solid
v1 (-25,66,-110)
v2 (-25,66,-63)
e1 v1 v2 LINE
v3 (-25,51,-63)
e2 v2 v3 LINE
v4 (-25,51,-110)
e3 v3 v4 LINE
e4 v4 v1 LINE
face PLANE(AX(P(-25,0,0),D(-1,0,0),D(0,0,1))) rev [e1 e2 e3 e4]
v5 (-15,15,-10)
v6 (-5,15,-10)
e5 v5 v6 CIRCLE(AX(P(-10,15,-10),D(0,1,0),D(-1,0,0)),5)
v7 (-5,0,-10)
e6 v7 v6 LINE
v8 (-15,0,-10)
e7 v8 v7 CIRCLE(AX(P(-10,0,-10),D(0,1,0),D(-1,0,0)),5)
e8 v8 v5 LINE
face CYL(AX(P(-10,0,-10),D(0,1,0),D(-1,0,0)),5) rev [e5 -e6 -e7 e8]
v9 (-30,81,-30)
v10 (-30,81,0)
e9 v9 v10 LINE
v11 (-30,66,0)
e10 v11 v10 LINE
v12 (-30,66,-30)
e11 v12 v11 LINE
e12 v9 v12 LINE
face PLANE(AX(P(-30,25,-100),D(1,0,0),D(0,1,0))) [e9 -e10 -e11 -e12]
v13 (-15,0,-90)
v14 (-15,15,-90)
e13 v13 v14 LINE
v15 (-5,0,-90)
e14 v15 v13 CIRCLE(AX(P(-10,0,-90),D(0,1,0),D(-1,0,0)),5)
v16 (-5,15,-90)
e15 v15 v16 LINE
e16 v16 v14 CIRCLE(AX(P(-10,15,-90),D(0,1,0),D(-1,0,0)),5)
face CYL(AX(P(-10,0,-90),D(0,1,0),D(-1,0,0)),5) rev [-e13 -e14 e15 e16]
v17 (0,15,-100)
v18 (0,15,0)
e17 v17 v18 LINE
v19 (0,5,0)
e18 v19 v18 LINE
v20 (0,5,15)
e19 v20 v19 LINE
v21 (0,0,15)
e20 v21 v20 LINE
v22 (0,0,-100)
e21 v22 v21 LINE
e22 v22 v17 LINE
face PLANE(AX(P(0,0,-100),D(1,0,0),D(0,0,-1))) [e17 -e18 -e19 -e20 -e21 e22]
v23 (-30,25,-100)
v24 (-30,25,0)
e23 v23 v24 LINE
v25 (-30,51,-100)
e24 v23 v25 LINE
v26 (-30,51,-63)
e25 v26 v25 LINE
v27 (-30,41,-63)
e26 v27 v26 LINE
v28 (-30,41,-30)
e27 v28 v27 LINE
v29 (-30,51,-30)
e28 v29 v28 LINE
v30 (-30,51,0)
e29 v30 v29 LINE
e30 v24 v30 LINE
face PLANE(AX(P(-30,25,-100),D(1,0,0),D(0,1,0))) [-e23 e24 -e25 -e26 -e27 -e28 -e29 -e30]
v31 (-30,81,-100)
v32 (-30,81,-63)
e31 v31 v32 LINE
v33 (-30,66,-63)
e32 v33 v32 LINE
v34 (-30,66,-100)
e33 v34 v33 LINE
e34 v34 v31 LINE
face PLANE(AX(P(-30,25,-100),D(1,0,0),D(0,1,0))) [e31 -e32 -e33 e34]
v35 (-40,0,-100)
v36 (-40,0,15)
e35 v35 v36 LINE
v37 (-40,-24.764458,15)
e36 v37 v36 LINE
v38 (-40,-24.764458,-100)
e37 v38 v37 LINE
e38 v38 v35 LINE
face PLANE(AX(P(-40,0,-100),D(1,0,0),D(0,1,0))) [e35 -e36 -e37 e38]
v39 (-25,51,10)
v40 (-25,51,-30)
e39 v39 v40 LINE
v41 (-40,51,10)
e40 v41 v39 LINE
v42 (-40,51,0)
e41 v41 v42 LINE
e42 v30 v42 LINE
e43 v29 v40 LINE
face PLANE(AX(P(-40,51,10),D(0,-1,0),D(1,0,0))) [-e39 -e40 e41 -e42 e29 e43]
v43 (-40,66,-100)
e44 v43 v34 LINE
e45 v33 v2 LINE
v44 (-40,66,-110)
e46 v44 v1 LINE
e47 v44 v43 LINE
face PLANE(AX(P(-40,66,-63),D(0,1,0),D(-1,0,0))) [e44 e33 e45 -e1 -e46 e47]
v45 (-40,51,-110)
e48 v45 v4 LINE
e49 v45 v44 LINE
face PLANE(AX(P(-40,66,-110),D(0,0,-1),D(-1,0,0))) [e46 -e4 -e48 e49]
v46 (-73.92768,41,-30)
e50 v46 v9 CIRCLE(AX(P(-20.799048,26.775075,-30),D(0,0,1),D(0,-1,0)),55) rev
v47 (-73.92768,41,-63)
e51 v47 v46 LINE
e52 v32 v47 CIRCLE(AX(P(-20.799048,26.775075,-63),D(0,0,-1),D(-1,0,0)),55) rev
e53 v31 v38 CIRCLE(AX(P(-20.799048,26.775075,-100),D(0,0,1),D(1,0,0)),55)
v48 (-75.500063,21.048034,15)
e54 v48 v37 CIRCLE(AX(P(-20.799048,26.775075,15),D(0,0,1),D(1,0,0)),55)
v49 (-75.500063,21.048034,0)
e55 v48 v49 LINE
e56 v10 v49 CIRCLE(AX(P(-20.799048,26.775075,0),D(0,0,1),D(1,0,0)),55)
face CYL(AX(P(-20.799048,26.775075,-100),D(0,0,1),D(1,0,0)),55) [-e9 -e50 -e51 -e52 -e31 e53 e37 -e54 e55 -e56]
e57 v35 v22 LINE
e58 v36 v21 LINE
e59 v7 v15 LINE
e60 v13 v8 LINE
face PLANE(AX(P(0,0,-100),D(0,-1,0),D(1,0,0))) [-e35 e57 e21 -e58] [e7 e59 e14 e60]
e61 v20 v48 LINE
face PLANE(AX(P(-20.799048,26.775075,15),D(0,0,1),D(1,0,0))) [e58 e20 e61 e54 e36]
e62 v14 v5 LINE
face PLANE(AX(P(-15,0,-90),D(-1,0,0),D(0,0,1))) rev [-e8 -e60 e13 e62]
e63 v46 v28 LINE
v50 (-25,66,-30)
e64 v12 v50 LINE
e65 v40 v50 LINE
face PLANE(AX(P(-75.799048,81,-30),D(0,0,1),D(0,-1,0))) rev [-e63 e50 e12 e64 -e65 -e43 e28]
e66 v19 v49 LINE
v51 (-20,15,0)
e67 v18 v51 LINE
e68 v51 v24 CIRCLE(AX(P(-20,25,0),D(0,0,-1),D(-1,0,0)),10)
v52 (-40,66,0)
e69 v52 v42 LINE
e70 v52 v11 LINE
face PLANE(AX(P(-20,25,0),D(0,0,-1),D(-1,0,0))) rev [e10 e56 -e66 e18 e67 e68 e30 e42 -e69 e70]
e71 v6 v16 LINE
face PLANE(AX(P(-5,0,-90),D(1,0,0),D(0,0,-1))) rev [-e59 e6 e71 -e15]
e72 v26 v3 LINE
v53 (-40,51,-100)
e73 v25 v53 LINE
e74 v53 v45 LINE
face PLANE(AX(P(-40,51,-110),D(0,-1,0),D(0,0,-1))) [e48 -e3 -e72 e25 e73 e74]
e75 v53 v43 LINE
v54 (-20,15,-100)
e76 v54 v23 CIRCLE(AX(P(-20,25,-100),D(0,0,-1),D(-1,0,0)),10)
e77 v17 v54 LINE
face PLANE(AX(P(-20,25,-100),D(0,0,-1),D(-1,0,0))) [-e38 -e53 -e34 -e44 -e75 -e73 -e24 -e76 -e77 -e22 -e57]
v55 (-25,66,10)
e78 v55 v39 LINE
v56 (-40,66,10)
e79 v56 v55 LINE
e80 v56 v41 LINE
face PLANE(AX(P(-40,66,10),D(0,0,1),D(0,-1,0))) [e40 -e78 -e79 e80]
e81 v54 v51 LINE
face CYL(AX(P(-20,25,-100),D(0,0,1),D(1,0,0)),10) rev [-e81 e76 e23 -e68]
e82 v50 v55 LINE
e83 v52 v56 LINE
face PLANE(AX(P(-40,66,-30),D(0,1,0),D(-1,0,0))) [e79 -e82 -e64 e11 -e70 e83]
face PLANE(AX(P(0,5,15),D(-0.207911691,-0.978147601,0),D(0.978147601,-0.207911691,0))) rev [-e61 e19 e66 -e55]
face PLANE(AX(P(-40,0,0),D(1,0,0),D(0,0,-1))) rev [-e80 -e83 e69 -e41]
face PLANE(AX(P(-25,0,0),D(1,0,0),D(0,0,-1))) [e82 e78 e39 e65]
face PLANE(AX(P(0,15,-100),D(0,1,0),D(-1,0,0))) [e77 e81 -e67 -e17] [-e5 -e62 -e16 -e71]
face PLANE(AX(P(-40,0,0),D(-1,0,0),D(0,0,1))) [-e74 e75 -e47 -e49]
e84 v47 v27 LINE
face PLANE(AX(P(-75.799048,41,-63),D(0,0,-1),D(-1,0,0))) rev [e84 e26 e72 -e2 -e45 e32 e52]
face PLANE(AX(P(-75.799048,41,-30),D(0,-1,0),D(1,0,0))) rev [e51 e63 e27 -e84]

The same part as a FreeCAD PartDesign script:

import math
import FreeCAD as App
import Part
import Sketcher

V = App.Vector
Q = App.Units.Quantity

doc = App.newDocument("Part")
body = doc.addObject("PartDesign::Body", "Body")

sketch1 = doc.addObject("Sketcher::SketchObject", "Sketch")
body.addObject(sketch1)
sketch1.AttachmentSupport = (doc.XY_Plane, [""])
sketch1.MapMode = "FlatFace"
sketch1.addGeometry([
    Part.LineSegment(V(-40, 0, 0), V(0, 0, 0)),
    Part.LineSegment(V(0, 0, 0), V(0, 15, 0)),
    Part.LineSegment(V(0, 15, 0), V(-20, 15, 0)),
    Part.ArcOfCircle(Part.Circle(V(-20, 25, 0), V(0, 0, 1), 10), math.radians(180), math.radians(270)),
    Part.LineSegment(V(-30, 25, 0), V(-30, 81, 0)),
    Part.ArcOfCircle(Part.Circle(V(-20.799048, 26.775075, 0), V(0, 0, 1), 55), math.radians(99.630293), math.radians(249.567221)),
    Part.LineSegment(V(-40, -24.764458, 0), V(-40, 0, 0)),
], False)
sketch1.addConstraint([
    Sketcher.Constraint("Coincident", 0, 2, 1, 1),
    Sketcher.Constraint("Coincident", 1, 2, 2, 1),
    Sketcher.Constraint("Tangent", 2, 2, 3, 2),
    Sketcher.Constraint("Tangent", 3, 1, 4, 1),
    Sketcher.Constraint("Coincident", 4, 2, 5, 1),
    Sketcher.Constraint("Coincident", 5, 2, 6, 1),
    Sketcher.Constraint("Coincident", 6, 2, 0, 1),
    Sketcher.Constraint("Horizontal", 0),
    Sketcher.Constraint("Vertical", 1),
    Sketcher.Constraint("Horizontal", 2),
    Sketcher.Constraint("Vertical", 4),
    Sketcher.Constraint("Vertical", 6),
    Sketcher.Constraint("Coincident", 0, 2, -1, 1),
    Sketcher.Constraint("Radius", 3, 10.0),
    Sketcher.Constraint("Radius", 5, 55.0),
    Sketcher.Constraint("DistanceX", 0, 1, 0, 2, 40.0),
    Sketcher.Constraint("DistanceX", 2, 2, 2, 1, 20.0),
    Sketcher.Constraint("DistanceY", 1, 1, 1, 2, 15.0),
    Sketcher.Constraint("DistanceY", 4, 1, 4, 2, 56.0),
    Sketcher.Constraint("DistanceY", 6, 1, 6, 2, 24.764458),
])
pad1 = doc.addObject("PartDesign::Pad", "Pad")
body.addObject(pad1)
pad1.Profile = sketch1
pad1.Length = 100
pad1.Reversed = True

sketch2 = doc.addObject("Sketcher::SketchObject", "Sketch001")
body.addObject(sketch2)
sketch2.AttachmentSupport = (doc.XY_Plane, [""])
sketch2.MapMode = "FlatFace"
sketch2.AttachmentOffset = App.Placement(V(0, 0, 15), App.Rotation())
sketch2.addGeometry([
    Part.LineSegment(V(0, 0, 0), V(0, 5, 0)),
    Part.LineSegment(V(0, 5, 0), V(-75.500063, 21.048034, 0)),
    Part.ArcOfCircle(Part.Circle(V(-20.799048, 26.775075, 0), V(0, 0, 1), 55), math.radians(-174.023069), math.radians(-110.432779)),
    Part.LineSegment(V(-40, -24.764458, 0), V(-40, 0, 0)),
    Part.LineSegment(V(-40, 0, 0), V(0, 0, 0)),
], False)
sketch2.addConstraint([
    Sketcher.Constraint("Coincident", 0, 2, 1, 1),
    Sketcher.Constraint("Coincident", 1, 2, 2, 1),
    Sketcher.Constraint("Coincident", 2, 2, 3, 1),
    Sketcher.Constraint("Coincident", 3, 2, 4, 1),
    Sketcher.Constraint("Coincident", 4, 2, 0, 1),
    Sketcher.Constraint("Vertical", 0),
    Sketcher.Constraint("Vertical", 3),
    Sketcher.Constraint("Horizontal", 4),
    Sketcher.Constraint("Coincident", 4, 2, -1, 1),
    Sketcher.Constraint("Radius", 2, 55.0),
    Sketcher.Constraint("DistanceX", 4, 1, 4, 2, 40.0),
    Sketcher.Constraint("DistanceY", 0, 1, 0, 2, 5.0),
    Sketcher.Constraint("Angle", 1, Q("168 deg")),
    Sketcher.Constraint("Distance", 1, 77.186779),
    Sketcher.Constraint("DistanceY", 3, 1, 3, 2, 24.764458),
])
pad2 = doc.addObject("PartDesign::Pad", "Pad001")
body.addObject(pad2)
pad2.Profile = sketch2
pad2.Length = 15
pad2.Reversed = True

sketch3 = doc.addObject("Sketcher::SketchObject", "Sketch002")
body.addObject(sketch3)
sketch3.AttachmentSupport = (doc.XZ_Plane, [""])
sketch3.MapMode = "FlatFace"
sketch3.AttachmentOffset = App.Placement(V(0, 0, -15), App.Rotation())
sketch3.addGeometry([
    Part.LineSegment(V(-5, -10, 0), V(-5, -90, 0)),
    Part.ArcOfCircle(Part.Circle(V(-10, -90, 0), V(0, 0, 1), 5), math.radians(180), math.radians(360)),
    Part.LineSegment(V(-15, -90, 0), V(-15, -10, 0)),
    Part.ArcOfCircle(Part.Circle(V(-10, -10, 0), V(0, 0, 1), 5), math.radians(0), math.radians(180)),
], False)
sketch3.addConstraint([
    Sketcher.Constraint("Tangent", 0, 2, 1, 2),
    Sketcher.Constraint("Tangent", 1, 1, 2, 1),
    Sketcher.Constraint("Tangent", 2, 2, 3, 2),
    Sketcher.Constraint("Tangent", 3, 1, 0, 1),
    Sketcher.Constraint("Vertical", 0),
    Sketcher.Constraint("Vertical", 2),
    Sketcher.Constraint("Radius", 1, 5.0),
    Sketcher.Constraint("DistanceY", 0, 2, 0, 1, 80.0),
    Sketcher.Constraint("DistanceX", 1, 3, -1, 1, 10.0),
    Sketcher.Constraint("DistanceY", 1, 3, -1, 1, 90.0),
])
pocket1 = doc.addObject("PartDesign::Pocket", "Pocket")
body.addObject(pocket1)
pocket1.Profile = sketch3
pocket1.Length = 15
pocket1.Reversed = True

sketch4 = doc.addObject("Sketcher::SketchObject", "Sketch003")
body.addObject(sketch4)
sketch4.AttachmentSupport = (doc.YZ_Plane, [""])
sketch4.MapMode = "FlatFace"
sketch4.AttachmentOffset = App.Placement(V(0, 0, -30), App.Rotation())
sketch4.addGeometry([
    Part.LineSegment(V(81, -30, 0), V(41, -30, 0)),
    Part.LineSegment(V(41, -30, 0), V(41, -63, 0)),
    Part.LineSegment(V(41, -63, 0), V(81, -63, 0)),
    Part.LineSegment(V(81, -63, 0), V(81, -30, 0)),
], False)
sketch4.addConstraint([
    Sketcher.Constraint("Coincident", 0, 2, 1, 1),
    Sketcher.Constraint("Coincident", 1, 2, 2, 1),
    Sketcher.Constraint("Coincident", 2, 2, 3, 1),
    Sketcher.Constraint("Coincident", 3, 2, 0, 1),
    Sketcher.Constraint("Horizontal", 0),
    Sketcher.Constraint("Vertical", 1),
    Sketcher.Constraint("Horizontal", 2),
    Sketcher.Constraint("Vertical", 3),
    Sketcher.Constraint("DistanceX", 0, 2, 0, 1, 40.0),
    Sketcher.Constraint("DistanceY", 1, 2, 1, 1, 33.0),
    Sketcher.Constraint("DistanceX", -1, 1, 0, 2, 41.0),
    Sketcher.Constraint("DistanceY", 0, 2, -1, 1, 30.0),
])
pocket2 = doc.addObject("PartDesign::Pocket", "Pocket001")
body.addObject(pocket2)
pocket2.Profile = sketch4
pocket2.Type = "ThroughAll"

sketch5 = doc.addObject("Sketcher::SketchObject", "Sketch004")
body.addObject(sketch5)
sketch5.AttachmentSupport = (doc.YZ_Plane, [""])
sketch5.MapMode = "FlatFace"
sketch5.AttachmentOffset = App.Placement(V(0, 0, -30), App.Rotation())
sketch5.addGeometry([
    Part.LineSegment(V(66, -63, 0), V(51, -63, 0)),
    Part.LineSegment(V(51, -63, 0), V(51, -110, 0)),
    Part.LineSegment(V(51, -110, 0), V(66, -110, 0)),
    Part.LineSegment(V(66, -110, 0), V(66, -63, 0)),
], False)
sketch5.addConstraint([
    Sketcher.Constraint("Coincident", 0, 2, 1, 1),
    Sketcher.Constraint("Coincident", 1, 2, 2, 1),
    Sketcher.Constraint("Coincident", 2, 2, 3, 1),
    Sketcher.Constraint("Coincident", 3, 2, 0, 1),
    Sketcher.Constraint("Horizontal", 0),
    Sketcher.Constraint("Vertical", 1),
    Sketcher.Constraint("Horizontal", 2),
    Sketcher.Constraint("Vertical", 3),
    Sketcher.Constraint("DistanceX", 0, 2, 0, 1, 15.0),
    Sketcher.Constraint("DistanceY", 1, 2, 1, 1, 47.0),
    Sketcher.Constraint("DistanceX", -1, 1, 0, 2, 51.0),
    Sketcher.Constraint("DistanceY", 0, 2, -1, 1, 63.0),
])
pad3 = doc.addObject("PartDesign::Pad", "Pad002")
body.addObject(pad3)
pad3.Profile = sketch5
pad3.Type = "TwoLengths"
pad3.Length = 5
pad3.Length2 = 10

sketch6 = doc.addObject("Sketcher::SketchObject", "Sketch005")
body.addObject(sketch6)
sketch6.AttachmentSupport = (doc.YZ_Plane, [""])
sketch6.MapMode = "FlatFace"
sketch6.AttachmentOffset = App.Placement(V(0, 0, -30), App.Rotation())
sketch6.addGeometry([
    Part.LineSegment(V(66, 10, 0), V(51, 10, 0)),
    Part.LineSegment(V(51, 10, 0), V(51, -30, 0)),
    Part.LineSegment(V(51, -30, 0), V(66, -30, 0)),
    Part.LineSegment(V(66, -30, 0), V(66, 10, 0)),
], False)
sketch6.addConstraint([
    Sketcher.Constraint("Coincident", 0, 2, 1, 1),
    Sketcher.Constraint("Coincident", 1, 2, 2, 1),
    Sketcher.Constraint("Coincident", 2, 2, 3, 1),
    Sketcher.Constraint("Coincident", 3, 2, 0, 1),
    Sketcher.Constraint("Horizontal", 0),
    Sketcher.Constraint("Vertical", 1),
    Sketcher.Constraint("Horizontal", 2),
    Sketcher.Constraint("Vertical", 3),
    Sketcher.Constraint("DistanceX", 0, 2, 0, 1, 15.0),
    Sketcher.Constraint("DistanceY", 1, 2, 1, 1, 40.0),
    Sketcher.Constraint("DistanceX", -1, 1, 0, 2, 51.0),
    Sketcher.Constraint("DistanceY", -1, 1, 0, 2, 10.0),
])
pad4 = doc.addObject("PartDesign::Pad", "Pad003")
body.addObject(pad4)
pad4.Profile = sketch6
pad4.Type = "TwoLengths"
pad4.Length = 5
pad4.Length2 = 10

doc.recompute()
